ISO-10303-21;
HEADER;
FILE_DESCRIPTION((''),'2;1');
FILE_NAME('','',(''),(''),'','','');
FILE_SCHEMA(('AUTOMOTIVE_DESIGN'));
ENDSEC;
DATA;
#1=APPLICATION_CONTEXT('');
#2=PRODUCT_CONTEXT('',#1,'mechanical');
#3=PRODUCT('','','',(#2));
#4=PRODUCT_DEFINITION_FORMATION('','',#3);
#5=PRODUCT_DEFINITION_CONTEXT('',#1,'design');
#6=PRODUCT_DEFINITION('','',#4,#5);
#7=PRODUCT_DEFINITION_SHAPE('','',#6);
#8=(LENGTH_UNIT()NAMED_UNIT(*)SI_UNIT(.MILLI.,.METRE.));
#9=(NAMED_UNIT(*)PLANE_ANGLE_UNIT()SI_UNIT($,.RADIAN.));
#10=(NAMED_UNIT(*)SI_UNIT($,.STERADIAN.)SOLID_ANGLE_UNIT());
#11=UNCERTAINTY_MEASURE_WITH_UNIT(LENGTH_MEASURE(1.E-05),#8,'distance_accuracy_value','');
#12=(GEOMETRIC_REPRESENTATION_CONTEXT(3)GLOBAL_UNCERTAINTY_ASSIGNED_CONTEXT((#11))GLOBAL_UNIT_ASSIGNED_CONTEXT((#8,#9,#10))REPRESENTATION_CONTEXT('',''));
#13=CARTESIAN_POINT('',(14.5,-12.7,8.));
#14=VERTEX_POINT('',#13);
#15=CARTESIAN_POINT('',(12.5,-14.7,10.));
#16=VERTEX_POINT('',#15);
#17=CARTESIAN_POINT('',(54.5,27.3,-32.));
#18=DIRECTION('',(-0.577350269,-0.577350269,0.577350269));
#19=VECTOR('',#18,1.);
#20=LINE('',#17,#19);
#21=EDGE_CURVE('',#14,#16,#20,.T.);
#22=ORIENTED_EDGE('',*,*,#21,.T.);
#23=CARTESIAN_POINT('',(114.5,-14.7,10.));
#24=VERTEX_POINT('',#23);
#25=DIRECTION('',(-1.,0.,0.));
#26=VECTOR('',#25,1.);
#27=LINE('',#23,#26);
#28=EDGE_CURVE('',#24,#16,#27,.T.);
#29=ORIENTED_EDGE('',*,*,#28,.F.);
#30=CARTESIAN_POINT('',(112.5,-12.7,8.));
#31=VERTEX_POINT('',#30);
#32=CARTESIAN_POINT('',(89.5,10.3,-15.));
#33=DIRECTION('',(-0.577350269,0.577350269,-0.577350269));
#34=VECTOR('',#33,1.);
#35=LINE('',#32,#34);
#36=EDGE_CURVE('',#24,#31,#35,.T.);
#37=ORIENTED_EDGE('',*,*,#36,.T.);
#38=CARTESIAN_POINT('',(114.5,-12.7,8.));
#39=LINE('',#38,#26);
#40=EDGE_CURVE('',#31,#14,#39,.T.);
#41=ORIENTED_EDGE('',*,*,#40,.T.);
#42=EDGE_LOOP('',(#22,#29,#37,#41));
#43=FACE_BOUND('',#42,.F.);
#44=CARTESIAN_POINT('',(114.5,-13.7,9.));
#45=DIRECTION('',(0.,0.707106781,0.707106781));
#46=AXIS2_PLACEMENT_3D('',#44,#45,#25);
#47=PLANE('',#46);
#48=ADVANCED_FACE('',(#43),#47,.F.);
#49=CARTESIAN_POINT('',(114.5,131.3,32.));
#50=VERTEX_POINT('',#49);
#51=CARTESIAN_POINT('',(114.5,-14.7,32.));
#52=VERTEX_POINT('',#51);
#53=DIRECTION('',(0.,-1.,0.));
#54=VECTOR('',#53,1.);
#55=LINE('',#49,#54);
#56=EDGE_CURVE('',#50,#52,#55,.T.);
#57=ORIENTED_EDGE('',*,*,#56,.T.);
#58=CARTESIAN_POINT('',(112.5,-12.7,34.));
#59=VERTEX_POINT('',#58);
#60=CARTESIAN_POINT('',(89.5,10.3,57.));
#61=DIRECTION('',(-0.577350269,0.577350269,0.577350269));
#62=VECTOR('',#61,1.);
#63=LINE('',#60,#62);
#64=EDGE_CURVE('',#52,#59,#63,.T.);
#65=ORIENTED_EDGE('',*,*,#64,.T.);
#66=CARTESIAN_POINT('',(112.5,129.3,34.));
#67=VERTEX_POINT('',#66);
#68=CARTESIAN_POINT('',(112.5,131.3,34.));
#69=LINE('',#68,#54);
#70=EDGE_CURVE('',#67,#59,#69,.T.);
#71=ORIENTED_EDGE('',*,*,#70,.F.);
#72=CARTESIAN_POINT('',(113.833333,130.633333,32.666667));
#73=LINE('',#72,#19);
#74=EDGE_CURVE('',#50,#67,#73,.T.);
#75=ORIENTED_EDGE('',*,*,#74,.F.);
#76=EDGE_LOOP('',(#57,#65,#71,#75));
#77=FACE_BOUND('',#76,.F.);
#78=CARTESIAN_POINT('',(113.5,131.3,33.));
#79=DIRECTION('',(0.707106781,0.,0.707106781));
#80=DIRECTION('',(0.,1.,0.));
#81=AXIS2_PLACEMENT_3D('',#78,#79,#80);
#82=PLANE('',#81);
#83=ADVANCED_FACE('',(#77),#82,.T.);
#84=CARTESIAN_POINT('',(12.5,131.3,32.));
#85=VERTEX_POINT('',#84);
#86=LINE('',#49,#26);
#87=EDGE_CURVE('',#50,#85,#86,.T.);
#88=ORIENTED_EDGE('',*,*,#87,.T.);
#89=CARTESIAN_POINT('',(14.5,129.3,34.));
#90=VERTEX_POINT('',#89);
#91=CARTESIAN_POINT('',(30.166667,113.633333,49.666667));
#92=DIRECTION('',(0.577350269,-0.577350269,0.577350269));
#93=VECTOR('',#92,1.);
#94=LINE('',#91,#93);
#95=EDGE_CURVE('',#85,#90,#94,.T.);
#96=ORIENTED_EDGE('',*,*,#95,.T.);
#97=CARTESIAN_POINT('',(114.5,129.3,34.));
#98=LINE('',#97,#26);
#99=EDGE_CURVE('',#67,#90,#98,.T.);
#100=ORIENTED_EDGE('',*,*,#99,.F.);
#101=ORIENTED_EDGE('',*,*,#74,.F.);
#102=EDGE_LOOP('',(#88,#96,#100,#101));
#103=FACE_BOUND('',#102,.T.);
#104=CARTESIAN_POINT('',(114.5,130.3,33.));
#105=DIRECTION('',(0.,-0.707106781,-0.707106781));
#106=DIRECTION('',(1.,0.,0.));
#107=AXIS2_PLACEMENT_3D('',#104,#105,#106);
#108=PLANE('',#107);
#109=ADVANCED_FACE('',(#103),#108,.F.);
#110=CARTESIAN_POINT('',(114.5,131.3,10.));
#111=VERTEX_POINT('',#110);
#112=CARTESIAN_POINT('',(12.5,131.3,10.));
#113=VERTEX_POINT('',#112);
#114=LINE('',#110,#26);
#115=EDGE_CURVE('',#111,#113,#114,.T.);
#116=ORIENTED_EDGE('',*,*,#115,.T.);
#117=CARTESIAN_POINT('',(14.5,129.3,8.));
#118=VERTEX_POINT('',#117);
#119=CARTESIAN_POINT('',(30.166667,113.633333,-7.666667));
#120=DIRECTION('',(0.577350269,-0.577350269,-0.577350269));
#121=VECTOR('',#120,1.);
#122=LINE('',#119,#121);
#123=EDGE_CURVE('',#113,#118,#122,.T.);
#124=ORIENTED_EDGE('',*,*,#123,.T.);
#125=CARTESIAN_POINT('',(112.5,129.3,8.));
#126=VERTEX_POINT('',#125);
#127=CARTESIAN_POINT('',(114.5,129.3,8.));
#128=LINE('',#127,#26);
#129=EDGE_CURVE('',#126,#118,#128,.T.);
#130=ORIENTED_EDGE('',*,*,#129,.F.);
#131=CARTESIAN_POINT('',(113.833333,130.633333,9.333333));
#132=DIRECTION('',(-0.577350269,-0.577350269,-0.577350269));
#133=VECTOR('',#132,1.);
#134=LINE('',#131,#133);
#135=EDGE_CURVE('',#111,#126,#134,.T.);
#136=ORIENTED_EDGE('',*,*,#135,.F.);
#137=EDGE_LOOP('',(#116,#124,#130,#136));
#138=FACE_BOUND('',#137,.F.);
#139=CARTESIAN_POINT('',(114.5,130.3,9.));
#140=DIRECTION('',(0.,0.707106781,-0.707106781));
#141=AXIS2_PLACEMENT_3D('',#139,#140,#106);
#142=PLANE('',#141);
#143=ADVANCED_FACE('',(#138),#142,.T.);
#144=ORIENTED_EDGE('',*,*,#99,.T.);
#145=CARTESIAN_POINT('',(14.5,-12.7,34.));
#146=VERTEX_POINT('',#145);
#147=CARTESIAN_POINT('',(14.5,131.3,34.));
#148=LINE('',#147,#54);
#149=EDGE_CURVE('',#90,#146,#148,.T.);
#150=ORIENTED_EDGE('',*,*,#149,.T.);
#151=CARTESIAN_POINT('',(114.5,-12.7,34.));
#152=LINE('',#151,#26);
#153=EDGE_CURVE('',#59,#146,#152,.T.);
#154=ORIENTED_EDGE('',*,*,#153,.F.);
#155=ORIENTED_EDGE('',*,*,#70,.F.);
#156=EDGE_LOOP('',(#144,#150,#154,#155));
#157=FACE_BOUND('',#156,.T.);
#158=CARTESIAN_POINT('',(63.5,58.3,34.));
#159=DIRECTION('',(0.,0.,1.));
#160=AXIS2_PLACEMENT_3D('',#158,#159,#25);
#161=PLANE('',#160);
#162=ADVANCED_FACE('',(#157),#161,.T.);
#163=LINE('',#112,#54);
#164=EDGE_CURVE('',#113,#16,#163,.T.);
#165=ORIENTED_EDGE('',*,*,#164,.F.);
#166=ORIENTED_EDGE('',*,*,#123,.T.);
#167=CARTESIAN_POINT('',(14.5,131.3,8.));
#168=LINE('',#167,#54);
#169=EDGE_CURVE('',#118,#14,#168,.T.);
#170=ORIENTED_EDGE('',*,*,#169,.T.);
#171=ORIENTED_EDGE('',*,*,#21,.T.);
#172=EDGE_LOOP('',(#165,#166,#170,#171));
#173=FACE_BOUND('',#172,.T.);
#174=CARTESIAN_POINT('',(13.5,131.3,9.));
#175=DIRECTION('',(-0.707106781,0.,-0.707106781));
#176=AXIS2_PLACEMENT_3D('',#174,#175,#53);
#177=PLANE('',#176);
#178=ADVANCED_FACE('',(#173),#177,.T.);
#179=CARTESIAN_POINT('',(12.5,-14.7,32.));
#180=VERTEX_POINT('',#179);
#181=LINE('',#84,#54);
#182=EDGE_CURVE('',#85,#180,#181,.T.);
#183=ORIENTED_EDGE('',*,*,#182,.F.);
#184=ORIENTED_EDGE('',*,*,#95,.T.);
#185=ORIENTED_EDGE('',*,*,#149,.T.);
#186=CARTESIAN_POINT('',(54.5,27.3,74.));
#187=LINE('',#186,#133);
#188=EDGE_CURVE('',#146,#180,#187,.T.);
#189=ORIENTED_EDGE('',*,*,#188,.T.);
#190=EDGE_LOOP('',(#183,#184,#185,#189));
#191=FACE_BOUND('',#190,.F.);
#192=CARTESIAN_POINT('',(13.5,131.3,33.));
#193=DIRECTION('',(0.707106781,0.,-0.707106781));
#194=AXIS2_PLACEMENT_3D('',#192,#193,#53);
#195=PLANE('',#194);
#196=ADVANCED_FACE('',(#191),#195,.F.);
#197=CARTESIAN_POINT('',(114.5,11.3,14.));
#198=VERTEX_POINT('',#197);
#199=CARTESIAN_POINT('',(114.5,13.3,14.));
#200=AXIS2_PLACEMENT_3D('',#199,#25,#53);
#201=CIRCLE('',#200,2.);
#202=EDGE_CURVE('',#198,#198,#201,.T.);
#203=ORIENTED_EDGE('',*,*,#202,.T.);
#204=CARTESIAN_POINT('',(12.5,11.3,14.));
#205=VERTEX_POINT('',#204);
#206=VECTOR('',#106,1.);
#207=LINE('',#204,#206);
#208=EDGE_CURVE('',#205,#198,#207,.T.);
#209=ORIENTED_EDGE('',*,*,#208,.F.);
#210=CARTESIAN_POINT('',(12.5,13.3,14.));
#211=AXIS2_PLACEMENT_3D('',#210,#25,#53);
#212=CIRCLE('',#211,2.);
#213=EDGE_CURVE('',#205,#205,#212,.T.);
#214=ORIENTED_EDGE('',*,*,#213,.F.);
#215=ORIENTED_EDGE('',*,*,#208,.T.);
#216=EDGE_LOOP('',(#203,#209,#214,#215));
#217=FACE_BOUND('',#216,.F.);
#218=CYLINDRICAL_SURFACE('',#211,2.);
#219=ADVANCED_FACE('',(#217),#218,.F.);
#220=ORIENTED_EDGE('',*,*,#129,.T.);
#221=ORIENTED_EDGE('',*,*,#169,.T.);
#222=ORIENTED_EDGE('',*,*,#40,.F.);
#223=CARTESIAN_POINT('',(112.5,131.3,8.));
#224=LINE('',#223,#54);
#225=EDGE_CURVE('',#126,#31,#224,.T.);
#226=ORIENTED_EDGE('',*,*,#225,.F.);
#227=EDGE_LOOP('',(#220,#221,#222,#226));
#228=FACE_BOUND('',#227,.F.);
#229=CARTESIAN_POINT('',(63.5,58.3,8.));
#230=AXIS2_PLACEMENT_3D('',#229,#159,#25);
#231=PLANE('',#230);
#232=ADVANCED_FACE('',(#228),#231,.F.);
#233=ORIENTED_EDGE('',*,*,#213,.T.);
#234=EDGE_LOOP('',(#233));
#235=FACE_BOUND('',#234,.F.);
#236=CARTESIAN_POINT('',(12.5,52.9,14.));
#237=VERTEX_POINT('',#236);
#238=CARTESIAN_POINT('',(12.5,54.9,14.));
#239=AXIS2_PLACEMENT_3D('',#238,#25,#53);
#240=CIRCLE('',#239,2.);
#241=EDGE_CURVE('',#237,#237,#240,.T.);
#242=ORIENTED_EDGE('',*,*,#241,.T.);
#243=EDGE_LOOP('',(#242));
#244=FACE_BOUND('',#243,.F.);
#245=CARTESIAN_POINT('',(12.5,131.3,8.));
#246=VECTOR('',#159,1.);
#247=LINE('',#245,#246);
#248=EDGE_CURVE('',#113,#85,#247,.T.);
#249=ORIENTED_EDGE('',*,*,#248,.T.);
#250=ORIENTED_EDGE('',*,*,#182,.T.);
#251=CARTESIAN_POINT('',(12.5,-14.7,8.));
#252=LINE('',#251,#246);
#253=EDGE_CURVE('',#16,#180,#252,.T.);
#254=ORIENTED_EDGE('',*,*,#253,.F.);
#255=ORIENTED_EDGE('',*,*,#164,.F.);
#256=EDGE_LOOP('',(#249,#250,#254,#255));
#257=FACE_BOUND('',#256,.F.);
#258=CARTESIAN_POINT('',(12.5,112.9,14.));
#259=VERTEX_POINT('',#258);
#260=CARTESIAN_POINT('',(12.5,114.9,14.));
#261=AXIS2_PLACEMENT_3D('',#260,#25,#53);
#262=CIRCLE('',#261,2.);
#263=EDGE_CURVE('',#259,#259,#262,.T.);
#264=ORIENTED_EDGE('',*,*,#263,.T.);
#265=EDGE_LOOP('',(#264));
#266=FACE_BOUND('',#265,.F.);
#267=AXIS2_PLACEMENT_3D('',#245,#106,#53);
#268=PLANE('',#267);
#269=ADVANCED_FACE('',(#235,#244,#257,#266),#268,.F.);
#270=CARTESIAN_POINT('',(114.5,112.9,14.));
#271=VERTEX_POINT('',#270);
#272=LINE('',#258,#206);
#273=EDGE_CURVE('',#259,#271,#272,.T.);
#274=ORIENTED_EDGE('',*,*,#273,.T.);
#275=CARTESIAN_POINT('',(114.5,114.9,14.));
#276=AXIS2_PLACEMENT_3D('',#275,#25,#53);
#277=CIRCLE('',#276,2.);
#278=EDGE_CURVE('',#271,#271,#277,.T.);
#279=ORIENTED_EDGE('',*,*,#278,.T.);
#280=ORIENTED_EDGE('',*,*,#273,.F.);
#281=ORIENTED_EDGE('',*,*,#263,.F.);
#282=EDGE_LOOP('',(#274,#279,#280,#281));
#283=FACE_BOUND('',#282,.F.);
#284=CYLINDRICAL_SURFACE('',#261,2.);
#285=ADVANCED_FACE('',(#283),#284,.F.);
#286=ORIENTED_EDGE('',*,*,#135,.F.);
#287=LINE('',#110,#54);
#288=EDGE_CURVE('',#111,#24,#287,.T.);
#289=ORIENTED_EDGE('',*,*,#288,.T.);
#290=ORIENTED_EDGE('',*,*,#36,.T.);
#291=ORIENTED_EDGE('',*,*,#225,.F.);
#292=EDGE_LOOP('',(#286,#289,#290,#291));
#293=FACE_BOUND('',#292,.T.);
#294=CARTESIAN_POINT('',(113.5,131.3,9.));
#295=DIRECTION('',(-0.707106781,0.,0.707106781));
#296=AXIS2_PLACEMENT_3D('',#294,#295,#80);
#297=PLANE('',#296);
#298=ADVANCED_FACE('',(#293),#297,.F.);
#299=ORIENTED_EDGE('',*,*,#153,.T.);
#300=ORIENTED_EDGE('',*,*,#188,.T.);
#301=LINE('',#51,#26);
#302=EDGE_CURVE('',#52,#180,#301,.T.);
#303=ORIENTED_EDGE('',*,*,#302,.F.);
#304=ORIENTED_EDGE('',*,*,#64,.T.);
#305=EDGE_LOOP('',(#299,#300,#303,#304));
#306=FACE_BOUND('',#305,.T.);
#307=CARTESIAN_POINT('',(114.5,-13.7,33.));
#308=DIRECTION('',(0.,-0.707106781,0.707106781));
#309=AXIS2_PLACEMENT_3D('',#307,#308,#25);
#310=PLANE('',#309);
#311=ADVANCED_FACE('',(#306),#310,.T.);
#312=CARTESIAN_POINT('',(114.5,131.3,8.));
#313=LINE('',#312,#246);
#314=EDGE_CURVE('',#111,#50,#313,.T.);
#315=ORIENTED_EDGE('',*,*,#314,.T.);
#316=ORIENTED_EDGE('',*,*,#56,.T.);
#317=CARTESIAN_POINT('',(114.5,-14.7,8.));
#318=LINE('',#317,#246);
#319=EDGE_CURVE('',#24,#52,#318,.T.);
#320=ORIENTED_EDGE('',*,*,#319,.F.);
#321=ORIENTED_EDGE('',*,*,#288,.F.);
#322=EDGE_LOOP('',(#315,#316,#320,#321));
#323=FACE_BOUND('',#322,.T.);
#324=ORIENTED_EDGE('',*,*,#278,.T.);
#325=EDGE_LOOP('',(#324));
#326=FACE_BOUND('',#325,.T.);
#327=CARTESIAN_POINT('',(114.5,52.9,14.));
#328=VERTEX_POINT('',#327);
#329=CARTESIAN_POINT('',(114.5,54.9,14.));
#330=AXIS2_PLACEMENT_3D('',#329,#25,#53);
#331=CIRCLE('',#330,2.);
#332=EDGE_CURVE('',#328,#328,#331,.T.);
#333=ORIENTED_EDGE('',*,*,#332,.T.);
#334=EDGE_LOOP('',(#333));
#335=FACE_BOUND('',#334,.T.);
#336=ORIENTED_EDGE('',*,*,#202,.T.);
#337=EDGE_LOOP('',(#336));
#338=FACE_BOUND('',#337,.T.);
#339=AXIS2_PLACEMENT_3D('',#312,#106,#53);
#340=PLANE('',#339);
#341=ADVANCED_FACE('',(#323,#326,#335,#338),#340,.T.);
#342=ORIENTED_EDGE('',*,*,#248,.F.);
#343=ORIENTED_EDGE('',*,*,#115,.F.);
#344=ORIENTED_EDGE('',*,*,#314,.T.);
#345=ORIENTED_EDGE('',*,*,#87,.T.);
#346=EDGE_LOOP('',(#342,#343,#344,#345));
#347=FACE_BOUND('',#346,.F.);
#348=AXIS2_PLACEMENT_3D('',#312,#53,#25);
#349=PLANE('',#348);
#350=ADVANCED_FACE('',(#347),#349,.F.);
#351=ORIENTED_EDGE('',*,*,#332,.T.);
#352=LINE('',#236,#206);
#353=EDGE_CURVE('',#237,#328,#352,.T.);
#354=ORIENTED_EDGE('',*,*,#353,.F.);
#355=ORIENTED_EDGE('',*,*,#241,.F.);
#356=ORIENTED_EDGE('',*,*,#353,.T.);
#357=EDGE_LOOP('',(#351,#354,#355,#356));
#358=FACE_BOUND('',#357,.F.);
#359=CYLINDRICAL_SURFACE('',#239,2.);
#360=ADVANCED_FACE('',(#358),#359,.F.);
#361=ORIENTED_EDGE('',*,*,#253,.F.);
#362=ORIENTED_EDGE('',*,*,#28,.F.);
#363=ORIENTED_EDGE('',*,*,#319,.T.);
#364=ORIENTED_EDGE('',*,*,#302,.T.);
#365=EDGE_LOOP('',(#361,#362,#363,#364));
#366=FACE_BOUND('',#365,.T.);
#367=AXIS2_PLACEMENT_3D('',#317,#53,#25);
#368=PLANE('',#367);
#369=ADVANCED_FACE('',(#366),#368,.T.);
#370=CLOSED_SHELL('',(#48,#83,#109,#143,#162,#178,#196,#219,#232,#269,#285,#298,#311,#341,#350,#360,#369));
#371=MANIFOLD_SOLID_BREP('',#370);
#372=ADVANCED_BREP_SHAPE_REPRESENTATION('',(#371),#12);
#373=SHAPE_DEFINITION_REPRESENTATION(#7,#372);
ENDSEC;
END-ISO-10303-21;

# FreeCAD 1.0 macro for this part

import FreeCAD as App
import Part
import Sketcher
Q = App.Units.Quantity


def edges_at(feature, points):
    """Names of the edges that pass closest to the given points."""
    edges = feature.Shape.Edges
    near = lambda p: min(range(len(edges)), key=lambda i: edges[i].distToShape(Part.Vertex(*p))[0])
    return sorted({f"Edge{near(p) + 1}" for p in points})


def add_polygon(sketch, points):
    """Adds a closed chain of lines whose ends are joined by coincident constraints."""
    first, n = sketch.GeometryCount, len(points)
    for a, b in zip(points, points[1:] + points[:1]):
        sketch.addGeometry(Part.LineSegment(App.Vector(*a, 0), App.Vector(*b, 0)), False)
    for i in range(n):
        sketch.addConstraint(Sketcher.Constraint("Coincident", first + i, 2, first + (i + 1) % n, 1))

doc = App.newDocument("Part")
params = doc.addObject("Spreadsheet::Sheet", "Params")
for row, (alias, value) in enumerate([
    ("sketch1_width", "102 mm"),
    ("sketch1_height", "146 mm"),
    ("pad1_length", "26 mm"),
    ("sketch2_diameter", "4 mm"),
    ("chamfer_size", "2 mm"),
], start=1):
    params.set(f"A{row}", alias)
    params.set(f"B{row}", "=" + value)
    params.setAlias(f"B{row}", alias)

body = doc.addObject("PartDesign::Body", "Body")

sketch1 = doc.addObject("Sketcher::SketchObject", "Sketch")
body.addObject(sketch1)
sketch1.AttachmentSupport = (doc.XY_Plane, [""])
sketch1.MapMode = "FlatFace"
add_polygon(sketch1, [(-51, 73), (-51, -73), (51, -73), (51, 73)])
sketch1.addConstraint([
    Sketcher.Constraint("Vertical", 0),
    Sketcher.Constraint("Horizontal", 1),
    Sketcher.Constraint("Vertical", 2),
    Sketcher.Constraint("Horizontal", 3),
    Sketcher.Constraint("Symmetric", 0, 2, 2, 2, -1, 1),
    Sketcher.Constraint("DistanceX", 1, 1, 1, 2, Q("102 mm")),
    Sketcher.Constraint("DistanceY", 0, 2, 0, 1, Q("146 mm")),
])
sketch1.setExpression("Constraints[9]", "Params.sketch1_width")
sketch1.setExpression("Constraints[10]", "Params.sketch1_height")
pad1 = doc.addObject("PartDesign::Pad", "Pad")
body.addObject(pad1)
pad1.Profile = sketch1
pad1.setExpression("Length", "Params.pad1_length")

sketch2 = doc.addObject("Sketcher::SketchObject", "Sketch001")
body.addObject(sketch2)
sketch2.AttachmentSupport = (doc.YZ_Plane, [""])
sketch2.MapMode = "FlatFace"
sketch2.AttachmentOffset = App.Placement(App.Vector(0, 0, 51), App.Rotation())
sketch2.addGeometry([
    Part.Circle(App.Vector(45, 6, 0), App.Vector(0, 0, 1), 2),
    Part.Circle(App.Vector(3.4, 6, 0), App.Vector(0, 0, 1), 2),
    Part.Circle(App.Vector(-56.6, 6, 0), App.Vector(0, 0, 1), 2),
], False)
sketch2.addConstraint([
    Sketcher.Constraint("Equal", 0, 1),
    Sketcher.Constraint("Equal", 1, 2),
    Sketcher.Constraint("Horizontal", 0, 3, 1, 3),
    Sketcher.Constraint("Horizontal", 1, 3, 2, 3),
    Sketcher.Constraint("Diameter", 0, Q("4 mm")),
    Sketcher.Constraint("DistanceX", -1, 1, 0, 3, Q("45 mm")),
    Sketcher.Constraint("DistanceY", -1, 1, 0, 3, Q("6 mm")),
    Sketcher.Constraint("DistanceX", 2, 3, 1, 3, Q("60 mm")),
    Sketcher.Constraint("DistanceX", -1, 1, 1, 3, Q("3.4 mm")),
])
sketch2.setExpression("Constraints[4]", "Params.sketch2_diameter")
pocket1 = doc.addObject("PartDesign::Pocket", "Pocket")
body.addObject(pocket1)
pocket1.Profile = sketch2
pocket1.Type = "ThroughAll"
doc.recompute()

chamfer = doc.addObject("PartDesign::Chamfer", "Chamfer")
body.addObject(chamfer)
chamfer.Base = (pocket1, edges_at(pocket1, [
    (-51, 0, 0),
    (0, -73, 0),
    (51, 0, 0),
    (0, 73, 0),
    (-51, 0, 26),
    (0, -73, 26),
    (51, 0, 26),
    (0, 73, 26),
]))
chamfer.setExpression("Size", "Params.chamfer_size")
body2 = doc.addObject("PartDesign::Body", "Body001")
doc.recompute()

body.Placement = App.Placement(App.Vector(63.5, 58.3, 8), App.Rotation(App.Vector(0, 0, 1), 180))
boolean = doc.addObject("PartDesign::Boolean", "Boolean")
body2.addObject(boolean)
boolean.Type = "Fuse"
boolean.addObjects([body])

doc.recompute()
